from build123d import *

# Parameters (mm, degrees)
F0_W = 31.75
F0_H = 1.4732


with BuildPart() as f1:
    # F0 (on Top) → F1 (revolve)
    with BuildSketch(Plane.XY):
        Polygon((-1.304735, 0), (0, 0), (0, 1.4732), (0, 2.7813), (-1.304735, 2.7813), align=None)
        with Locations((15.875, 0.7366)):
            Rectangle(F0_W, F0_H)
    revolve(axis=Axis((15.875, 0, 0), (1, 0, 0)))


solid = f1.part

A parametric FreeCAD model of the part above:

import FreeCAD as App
import Part
import Sketcher
from FreeCAD import Vector
Q = App.Units.Quantity

doc = App.newDocument("Part")
body = doc.addObject("PartDesign::Body", "Body")

# Sketch on XY plane
sketch1 = body.newObject("Sketcher::SketchObject", "Sketch")
sketch1.AttachmentSupport = (doc.getObject("XY_Plane"), [""])
sketch1.MapMode = "FlatFace"
sketch1.addGeometry([
    Part.LineSegment(Vector(-1.304735, 0, 0), Vector(31.75, 0, 0)),  # 0
    Part.LineSegment(Vector(31.75, 0, 0), Vector(31.75, 1.4732, 0)),  # 1
    Part.LineSegment(Vector(31.75, 1.4732, 0), Vector(0, 1.4732, 0)),  # 2
    Part.LineSegment(Vector(0, 1.4732, 0), Vector(0, 2.7813, 0)),  # 3
    Part.LineSegment(Vector(0, 2.7813, 0), Vector(-1.304735, 2.7813, 0)),  # 4
    Part.LineSegment(Vector(-1.304735, 2.7813, 0), Vector(-1.304735, 0, 0)),  # 5
], False)
sketch1.addConstraint([
    Sketcher.Constraint("Coincident", 0, 2, 1, 1),
    Sketcher.Constraint("Coincident", 1, 2, 2, 1),
    Sketcher.Constraint("Coincident", 2, 2, 3, 1),
    Sketcher.Constraint("Coincident", 3, 2, 4, 1),
    Sketcher.Constraint("Coincident", 4, 2, 5, 1),
    Sketcher.Constraint("Coincident", 5, 2, 0, 1),
    Sketcher.Constraint("Horizontal", 0),
    Sketcher.Constraint("Vertical", 1),
    Sketcher.Constraint("Horizontal", 2),
    Sketcher.Constraint("Vertical", 3),
    Sketcher.Constraint("Horizontal", 4),
    Sketcher.Constraint("Vertical", 5),
    Sketcher.Constraint("PointOnObject", 0, 2, -1),
    Sketcher.Constraint("PointOnObject", 2, 2, -2),
    Sketcher.Constraint("DistanceX", 2, 2, 2, 1, Q("1.25 in")),
    Sketcher.Constraint("DistanceY", 1, 1, 1, 2, Q("0.058 in")),
    Sketcher.Constraint("DistanceY", 3, 1, 3, 2, Q("0.0515 in")),
    Sketcher.Constraint("DistanceX", 0, 1, 0, 2, 33.054735),
])
revolution = body.newObject("PartDesign::Revolution", "Revolution")
revolution.Profile = sketch1
revolution.ReferenceAxis = (sketch1, ["H_Axis"])
revolution.Angle = 360

doc.recompute()
